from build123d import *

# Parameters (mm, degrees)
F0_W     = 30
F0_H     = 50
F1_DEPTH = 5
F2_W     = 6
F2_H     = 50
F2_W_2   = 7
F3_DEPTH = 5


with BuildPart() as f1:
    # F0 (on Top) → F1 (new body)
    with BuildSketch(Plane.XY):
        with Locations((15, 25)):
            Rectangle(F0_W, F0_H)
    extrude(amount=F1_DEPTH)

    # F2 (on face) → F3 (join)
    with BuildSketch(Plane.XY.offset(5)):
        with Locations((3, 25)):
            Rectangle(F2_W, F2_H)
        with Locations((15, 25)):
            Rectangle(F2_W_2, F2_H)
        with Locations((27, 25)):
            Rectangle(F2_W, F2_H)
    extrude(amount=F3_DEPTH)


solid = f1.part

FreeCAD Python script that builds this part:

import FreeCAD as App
import Part
import Sketcher

doc = App.newDocument("Part")
body = doc.addObject("PartDesign::Body", "Body")

# Sketch on XY plane
sketch1 = body.newObject("Sketcher::SketchObject", "Sketch")
sketch1.AttachmentSupport = (doc.getObject("XY_Plane"), [""])
sketch1.MapMode = "FlatFace"
sketch1.addGeometry([
    Part.LineSegment(App.Vector(0, 50, 0), App.Vector(0, 0, 0)),
    Part.LineSegment(App.Vector(0, 0, 0), App.Vector(30, 0, 0)),
    Part.LineSegment(App.Vector(30, 0, 0), App.Vector(30, 50, 0)),
    Part.LineSegment(App.Vector(30, 50, 0), App.Vector(0, 50, 0)),
], False)
sketch1.addConstraint([
    Sketcher.Constraint("Coincident", 0, 2, 1, 1),
    Sketcher.Constraint("Coincident", 1, 2, 2, 1),
    Sketcher.Constraint("Coincident", 2, 2, 3, 1),
    Sketcher.Constraint("Coincident", 3, 2, 0, 1),
    Sketcher.Constraint("Vertical", 0),
    Sketcher.Constraint("Horizontal", 1),
    Sketcher.Constraint("Vertical", 2),
    Sketcher.Constraint("Horizontal", 3),
    Sketcher.Constraint("Coincident", 0, 2, -1, 1),
    Sketcher.Constraint("DistanceX", 1, 1, 1, 2, 30.0),
    Sketcher.Constraint("DistanceY", 0, 2, 0, 1, 50.0),
])
pad1 = body.newObject("PartDesign::Pad", "Pad")
pad1.Profile = sketch1
pad1.Length = 5

# Sketch on XY plane
sketch2 = body.newObject("Sketcher::SketchObject", "Sketch001")
sketch2.AttachmentSupport = (doc.getObject("XY_Plane"), [""])
sketch2.MapMode = "FlatFace"
sketch2.AttachmentOffset = App.Placement(App.Vector(0, 0, 5), App.Rotation())
sketch2.addGeometry([
    Part.LineSegment(App.Vector(0, 50, 0), App.Vector(0, 0, 0)),  # 0
    Part.LineSegment(App.Vector(0, 0, 0), App.Vector(6, 0, 0)),  # 1
    Part.LineSegment(App.Vector(6, 0, 0), App.Vector(6, 50, 0)),  # 2
    Part.LineSegment(App.Vector(6, 50, 0), App.Vector(0, 50, 0)),  # 3
    Part.LineSegment(App.Vector(12, 50, 0), App.Vector(12, 0, 0)),  # 4
    Part.LineSegment(App.Vector(12, 0, 0), App.Vector(18, 0, 0)),  # 5
    Part.LineSegment(App.Vector(18, 0, 0), App.Vector(18, 50, 0)),  # 6
    Part.LineSegment(App.Vector(18, 50, 0), App.Vector(12, 50, 0)),  # 7
    Part.LineSegment(App.Vector(24, 50, 0), App.Vector(24, 0, 0)),  # 8
    Part.LineSegment(App.Vector(24, 0, 0), App.Vector(30, 0, 0)),  # 9
    Part.LineSegment(App.Vector(30, 0, 0), App.Vector(30, 50, 0)),  # 10
    Part.LineSegment(App.Vector(30, 50, 0), App.Vector(24, 50, 0)),  # 11
], False)
sketch2.addConstraint([
    Sketcher.Constraint("Coincident", 0, 2, 1, 1),
    Sketcher.Constraint("Coincident", 1, 2, 2, 1),
    Sketcher.Constraint("Coincident", 2, 2, 3, 1),
    Sketcher.Constraint("Coincident", 3, 2, 0, 1),
    Sketcher.Constraint("Coincident", 4, 2, 5, 1),
    Sketcher.Constraint("Coincident", 5, 2, 6, 1),
    Sketcher.Constraint("Coincident", 6, 2, 7, 1),
    Sketcher.Constraint("Coincident", 7, 2, 4, 1),
    Sketcher.Constraint("Coincident", 8, 2, 9, 1),
    Sketcher.Constraint("Coincident", 9, 2, 10, 1),
    Sketcher.Constraint("Coincident", 10, 2, 11, 1),
    Sketcher.Constraint("Coincident", 11, 2, 8, 1),
    Sketcher.Constraint("Vertical", 0),
    Sketcher.Constraint("Horizontal", 1),
    Sketcher.Constraint("Vertical", 2),
    Sketcher.Constraint("Horizontal", 3),
    Sketcher.Constraint("Vertical", 4),
    Sketcher.Constraint("Horizontal", 5),
    Sketcher.Constraint("Vertical", 6),
    Sketcher.Constraint("Horizontal", 7),
    Sketcher.Constraint("Vertical", 8),
    Sketcher.Constraint("Horizontal", 9),
    Sketcher.Constraint("Vertical", 10),
    Sketcher.Constraint("Horizontal", 11),
    Sketcher.Constraint("Coincident", 0, 2, -1, 1),
    Sketcher.Constraint("PointOnObject", 4, 2, -1),
    Sketcher.Constraint("PointOnObject", 8, 2, -1),
    Sketcher.Constraint("Horizontal", 3, 2, 6, 2),
    Sketcher.Constraint("Horizontal", 7, 2, 10, 2),
    Sketcher.Constraint("Equal", 3, 9),
    Sketcher.Constraint("DistanceX", 1, 1, 1, 2, 6.0),
    Sketcher.Constraint("DistanceX", 5, 1, 5, 2, 7.0),
    Sketcher.Constraint("DistanceY", 0, 2, 0, 1, 50.0),
    Sketcher.Constraint("DistanceX", -1, 1, 8, 2, 24.0),
    Sketcher.Constraint("DistanceX", -1, 1, 4, 2, 11.5),
])
pad2 = body.newObject("PartDesign::Pad", "Pad001")
pad2.Profile = sketch2
pad2.Length = 5

doc.recompute()
